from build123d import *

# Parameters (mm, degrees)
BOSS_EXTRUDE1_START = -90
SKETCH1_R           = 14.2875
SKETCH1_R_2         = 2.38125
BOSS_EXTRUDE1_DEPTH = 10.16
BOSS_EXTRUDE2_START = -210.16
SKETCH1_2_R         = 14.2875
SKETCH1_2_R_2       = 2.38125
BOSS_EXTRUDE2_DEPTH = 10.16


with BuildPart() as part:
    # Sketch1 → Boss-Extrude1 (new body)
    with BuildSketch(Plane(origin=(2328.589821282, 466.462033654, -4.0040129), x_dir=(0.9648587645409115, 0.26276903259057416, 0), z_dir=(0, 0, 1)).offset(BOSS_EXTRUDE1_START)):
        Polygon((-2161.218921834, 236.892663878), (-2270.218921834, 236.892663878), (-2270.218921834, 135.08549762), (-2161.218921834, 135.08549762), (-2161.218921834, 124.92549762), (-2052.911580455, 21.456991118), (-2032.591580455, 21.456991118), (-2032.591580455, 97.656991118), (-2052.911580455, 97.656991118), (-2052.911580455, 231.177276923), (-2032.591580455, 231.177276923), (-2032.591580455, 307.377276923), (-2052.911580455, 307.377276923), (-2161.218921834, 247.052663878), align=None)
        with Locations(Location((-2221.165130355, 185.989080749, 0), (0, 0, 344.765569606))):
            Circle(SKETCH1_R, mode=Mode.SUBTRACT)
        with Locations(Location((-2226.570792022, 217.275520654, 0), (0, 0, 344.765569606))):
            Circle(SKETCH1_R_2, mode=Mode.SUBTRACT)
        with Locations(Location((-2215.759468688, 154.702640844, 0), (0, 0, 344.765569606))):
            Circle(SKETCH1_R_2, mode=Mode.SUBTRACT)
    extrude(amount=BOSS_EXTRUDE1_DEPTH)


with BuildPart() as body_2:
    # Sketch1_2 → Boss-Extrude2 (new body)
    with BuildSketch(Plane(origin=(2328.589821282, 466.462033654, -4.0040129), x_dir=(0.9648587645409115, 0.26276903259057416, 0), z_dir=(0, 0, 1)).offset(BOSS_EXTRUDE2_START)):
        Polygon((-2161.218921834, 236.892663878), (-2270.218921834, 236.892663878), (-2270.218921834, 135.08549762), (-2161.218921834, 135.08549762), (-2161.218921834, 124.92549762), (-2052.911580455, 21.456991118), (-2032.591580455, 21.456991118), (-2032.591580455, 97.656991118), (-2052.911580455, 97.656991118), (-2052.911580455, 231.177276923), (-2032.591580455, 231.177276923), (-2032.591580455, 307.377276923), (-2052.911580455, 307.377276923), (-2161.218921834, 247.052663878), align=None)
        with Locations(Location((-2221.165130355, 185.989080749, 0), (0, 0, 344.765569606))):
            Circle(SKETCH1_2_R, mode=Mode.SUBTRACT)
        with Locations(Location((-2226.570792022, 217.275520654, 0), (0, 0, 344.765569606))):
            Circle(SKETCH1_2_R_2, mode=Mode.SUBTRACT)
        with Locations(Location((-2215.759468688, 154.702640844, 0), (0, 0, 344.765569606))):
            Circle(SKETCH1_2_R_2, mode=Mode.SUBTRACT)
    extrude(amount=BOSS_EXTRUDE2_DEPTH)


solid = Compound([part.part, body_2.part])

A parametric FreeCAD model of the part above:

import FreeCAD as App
import Part
import Sketcher
Q = App.Units.Quantity


def add_polygon(sketch, points):
    """Adds a closed chain of lines whose ends are joined by coincident constraints."""
    first, n = sketch.GeometryCount, len(points)
    for a, b in zip(points, points[1:] + points[:1]):
        sketch.addGeometry(Part.LineSegment(App.Vector(*a, 0), App.Vector(*b, 0)), False)
    for i in range(n):
        sketch.addConstraint(Sketcher.Constraint("Coincident", first + i, 2, first + (i + 1) % n, 1))

doc = App.newDocument("Part")
body = doc.addObject("PartDesign::Body", "Body")

sketch1 = body.newObject("Sketcher::SketchObject", "Sketch")
sketch1.AttachmentSupport = (doc.getObject("XY_Plane"), [""])
sketch1.MapMode = "FlatFace"
sketch1.AttachmentOffset = App.Placement(App.Vector(0, 0, -94.004013), App.Rotation())
add_polygon(sketch1, [(181.070745, 127.128591), (75.90114, 98.486766), (102.652911, 0.257229), (207.822516, 28.899054), (210.492249, 19.096089), (342.181856, -52.276591), (361.787786, -46.937124), (341.764786, 26.585113), (322.158856, 21.245647), (287.07386, 150.073865), (306.67979, 155.413331), (286.656789, 228.935569), (267.050859, 223.596103), (178.401012, 136.931556)])
sketch1.addGeometry(Part.Circle(App.Vector(150.043813, 33.49526, 0), App.Vector(0, 0, 1), 2.38125), False)
sketch1.addGeometry(Part.Circle(App.Vector(123.170198, 91.02837, 0), App.Vector(0, 0, 1), 2.38125), False)
sketch1.addGeometry(Part.Circle(App.Vector(136.607006, 62.261815, 0), App.Vector(0, 0, 1), 14.2875), False)
sketch1.addConstraint([
    Sketcher.Constraint("Equal", 14, 15),
    Sketcher.Constraint("Perpendicular", 0, 1),
    Sketcher.Constraint("Perpendicular", 1, 2),
    Sketcher.Constraint("Perpendicular", 2, 3),
    Sketcher.Constraint("Perpendicular", 3, 5),
    Sketcher.Constraint("Perpendicular", 5, 6),
    Sketcher.Constraint("Perpendicular", 6, 7),
    Sketcher.Constraint("Perpendicular", 7, 8),
    Sketcher.Constraint("Perpendicular", 8, 9),
    Sketcher.Constraint("Perpendicular", 9, 10),
    Sketcher.Constraint("Perpendicular", 10, 11),
    Sketcher.Constraint("Perpendicular", 11, 13),
    Sketcher.Constraint("Equal", 0, 2),
    Sketcher.Constraint("Equal", 5, 7),
    Sketcher.Constraint("Equal", 7, 9),
    Sketcher.Constraint("Equal", 6, 10),
    Sketcher.Constraint("Equal", 9, 11),
    Sketcher.Constraint("Equal", 3, 13),
    Sketcher.Constraint("Distance", 6, Q("3 in")),
    Sketcher.Constraint("Diameter", 14, Q("0.1875 in")),
    Sketcher.Constraint("Diameter", 16, Q("1.125 in")),
    Sketcher.Constraint("Distance", 3, Q("0.4 in")),
    Sketcher.Constraint("Distance", 5, Q("0.8 in")),
    Sketcher.Constraint("DistanceY", 6, 2, 2, 2, Q("0.0911 in")),
    Sketcher.Constraint("DistanceX", 15, 3, 8, 2, Q("6.4529001 in")),
    Sketcher.Constraint("Distance", 0, Q("109 mm")),
    Sketcher.Constraint("DistanceX", -1, 1, 15, 3, Q("123.170198 mm")),
    Sketcher.Constraint("DistanceX", 6, 2, 5, 2, Q("20.023 mm")),
    Sketcher.Constraint("DistanceY", 15, 3, 10, 2, Q("137.907199 mm")),
    Sketcher.Constraint("DistanceX", 14, 3, 12, 2, Q("28.357198 mm")),
    Sketcher.Constraint("DistanceY", -1, 1, 14, 3, Q("33.49526 mm")),
    Sketcher.Constraint("DistanceY", -1, 1, 15, 3, Q("91.02837 mm")),
    Sketcher.Constraint("DistanceX", -1, 1, 0, 2, Q("75.90114 mm")),
    Sketcher.Constraint("DistanceX", -1, 1, 1, 2, Q("102.652911 mm")),
    Sketcher.Constraint("DistanceY", -1, 1, 1, 2, Q("0.257229 mm")),
    Sketcher.Constraint("DistanceY", 16, 3, 0, 2, Q("36.224951 mm")),
    Sketcher.Constraint("DistanceX", 16, 3, 2, 2, Q("71.21551 mm")),
])
pad1 = body.newObject("PartDesign::Pad", "Pad")
pad1.Profile = sketch1
pad1.Length = Q("0.4 in")
body2 = doc.addObject("PartDesign::Body", "Body001")

sketch2 = body2.newObject("Sketcher::SketchObject", "Sketch001")
sketch2.AttachmentSupport = (doc.getObject("XY_Plane001"), [""])
sketch2.MapMode = "FlatFace"
sketch2.AttachmentOffset = App.Placement(App.Vector(0, 0, -214.164013), App.Rotation())
add_polygon(sketch2, [(181.070745, 127.128591), (75.90114, 98.486766), (102.652911, 0.257229), (207.822516, 28.899054), (210.492249, 19.096089), (342.181856, -52.276591), (361.787786, -46.937124), (341.764786, 26.585113), (322.158856, 21.245647), (287.07386, 150.073865), (306.67979, 155.413331), (286.656789, 228.935569), (267.050859, 223.596103), (178.401012, 136.931556)])
sketch2.addGeometry(Part.Circle(App.Vector(150.043813, 33.49526, 0), App.Vector(0, 0, 1), 2.38125), False)
sketch2.addGeometry(Part.Circle(App.Vector(123.170198, 91.02837, 0), App.Vector(0, 0, 1), 2.38125), False)
sketch2.addGeometry(Part.Circle(App.Vector(136.607006, 62.261815, 0), App.Vector(0, 0, 1), 14.2875), False)
sketch2.addConstraint([
    Sketcher.Constraint("Equal", 14, 15),
    Sketcher.Constraint("Perpendicular", 0, 1),
    Sketcher.Constraint("Perpendicular", 1, 2),
    Sketcher.Constraint("Perpendicular", 2, 3),
    Sketcher.Constraint("Perpendicular", 3, 5),
    Sketcher.Constraint("Perpendicular", 5, 6),
    Sketcher.Constraint("Perpendicular", 6, 7),
    Sketcher.Constraint("Perpendicular", 7, 8),
    Sketcher.Constraint("Perpendicular", 8, 9),
    Sketcher.Constraint("Perpendicular", 9, 10),
    Sketcher.Constraint("Perpendicular", 10, 11),
    Sketcher.Constraint("Perpendicular", 11, 13),
    Sketcher.Constraint("Equal", 0, 2),
    Sketcher.Constraint("Equal", 5, 7),
    Sketcher.Constraint("Equal", 7, 9),
    Sketcher.Constraint("Equal", 6, 10),
    Sketcher.Constraint("Equal", 9, 11),
    Sketcher.Constraint("Equal", 3, 13),
    Sketcher.Constraint("Distance", 6, Q("3 in")),
    Sketcher.Constraint("Diameter", 14, Q("0.1875 in")),
    Sketcher.Constraint("Diameter", 16, Q("1.125 in")),
    Sketcher.Constraint("Distance", 3, Q("0.4 in")),
    Sketcher.Constraint("Distance", 5, Q("0.8 in")),
    Sketcher.Constraint("DistanceY", 6, 2, 2, 2, Q("0.0911 in")),
    Sketcher.Constraint("DistanceX", 15, 3, 8, 2, Q("6.4529001 in")),
    Sketcher.Constraint("Distance", 0, Q("109 mm")),
    Sketcher.Constraint("DistanceX", -1, 1, 15, 3, Q("123.170198 mm")),
    Sketcher.Constraint("DistanceX", 6, 2, 5, 2, Q("20.023 mm")),
    Sketcher.Constraint("DistanceY", 15, 3, 10, 2, Q("137.907199 mm")),
    Sketcher.Constraint("DistanceX", 14, 3, 12, 2, Q("28.357198 mm")),
    Sketcher.Constraint("DistanceY", -1, 1, 14, 3, Q("33.49526 mm")),
    Sketcher.Constraint("DistanceY", -1, 1, 15, 3, Q("91.02837 mm")),
    Sketcher.Constraint("DistanceX", -1, 1, 0, 2, Q("75.90114 mm")),
    Sketcher.Constraint("DistanceX", -1, 1, 1, 2, Q("102.652911 mm")),
    Sketcher.Constraint("DistanceY", -1, 1, 1, 2, Q("0.257229 mm")),
    Sketcher.Constraint("DistanceY", 16, 3, 0, 2, Q("36.224951 mm")),
    Sketcher.Constraint("DistanceX", 16, 3, 2, 2, Q("71.21551 mm")),
])
pad2 = body2.newObject("PartDesign::Pad", "Pad001")
pad2.Profile = sketch2
pad2.Length = Q("0.4 in")

doc.recompute()
